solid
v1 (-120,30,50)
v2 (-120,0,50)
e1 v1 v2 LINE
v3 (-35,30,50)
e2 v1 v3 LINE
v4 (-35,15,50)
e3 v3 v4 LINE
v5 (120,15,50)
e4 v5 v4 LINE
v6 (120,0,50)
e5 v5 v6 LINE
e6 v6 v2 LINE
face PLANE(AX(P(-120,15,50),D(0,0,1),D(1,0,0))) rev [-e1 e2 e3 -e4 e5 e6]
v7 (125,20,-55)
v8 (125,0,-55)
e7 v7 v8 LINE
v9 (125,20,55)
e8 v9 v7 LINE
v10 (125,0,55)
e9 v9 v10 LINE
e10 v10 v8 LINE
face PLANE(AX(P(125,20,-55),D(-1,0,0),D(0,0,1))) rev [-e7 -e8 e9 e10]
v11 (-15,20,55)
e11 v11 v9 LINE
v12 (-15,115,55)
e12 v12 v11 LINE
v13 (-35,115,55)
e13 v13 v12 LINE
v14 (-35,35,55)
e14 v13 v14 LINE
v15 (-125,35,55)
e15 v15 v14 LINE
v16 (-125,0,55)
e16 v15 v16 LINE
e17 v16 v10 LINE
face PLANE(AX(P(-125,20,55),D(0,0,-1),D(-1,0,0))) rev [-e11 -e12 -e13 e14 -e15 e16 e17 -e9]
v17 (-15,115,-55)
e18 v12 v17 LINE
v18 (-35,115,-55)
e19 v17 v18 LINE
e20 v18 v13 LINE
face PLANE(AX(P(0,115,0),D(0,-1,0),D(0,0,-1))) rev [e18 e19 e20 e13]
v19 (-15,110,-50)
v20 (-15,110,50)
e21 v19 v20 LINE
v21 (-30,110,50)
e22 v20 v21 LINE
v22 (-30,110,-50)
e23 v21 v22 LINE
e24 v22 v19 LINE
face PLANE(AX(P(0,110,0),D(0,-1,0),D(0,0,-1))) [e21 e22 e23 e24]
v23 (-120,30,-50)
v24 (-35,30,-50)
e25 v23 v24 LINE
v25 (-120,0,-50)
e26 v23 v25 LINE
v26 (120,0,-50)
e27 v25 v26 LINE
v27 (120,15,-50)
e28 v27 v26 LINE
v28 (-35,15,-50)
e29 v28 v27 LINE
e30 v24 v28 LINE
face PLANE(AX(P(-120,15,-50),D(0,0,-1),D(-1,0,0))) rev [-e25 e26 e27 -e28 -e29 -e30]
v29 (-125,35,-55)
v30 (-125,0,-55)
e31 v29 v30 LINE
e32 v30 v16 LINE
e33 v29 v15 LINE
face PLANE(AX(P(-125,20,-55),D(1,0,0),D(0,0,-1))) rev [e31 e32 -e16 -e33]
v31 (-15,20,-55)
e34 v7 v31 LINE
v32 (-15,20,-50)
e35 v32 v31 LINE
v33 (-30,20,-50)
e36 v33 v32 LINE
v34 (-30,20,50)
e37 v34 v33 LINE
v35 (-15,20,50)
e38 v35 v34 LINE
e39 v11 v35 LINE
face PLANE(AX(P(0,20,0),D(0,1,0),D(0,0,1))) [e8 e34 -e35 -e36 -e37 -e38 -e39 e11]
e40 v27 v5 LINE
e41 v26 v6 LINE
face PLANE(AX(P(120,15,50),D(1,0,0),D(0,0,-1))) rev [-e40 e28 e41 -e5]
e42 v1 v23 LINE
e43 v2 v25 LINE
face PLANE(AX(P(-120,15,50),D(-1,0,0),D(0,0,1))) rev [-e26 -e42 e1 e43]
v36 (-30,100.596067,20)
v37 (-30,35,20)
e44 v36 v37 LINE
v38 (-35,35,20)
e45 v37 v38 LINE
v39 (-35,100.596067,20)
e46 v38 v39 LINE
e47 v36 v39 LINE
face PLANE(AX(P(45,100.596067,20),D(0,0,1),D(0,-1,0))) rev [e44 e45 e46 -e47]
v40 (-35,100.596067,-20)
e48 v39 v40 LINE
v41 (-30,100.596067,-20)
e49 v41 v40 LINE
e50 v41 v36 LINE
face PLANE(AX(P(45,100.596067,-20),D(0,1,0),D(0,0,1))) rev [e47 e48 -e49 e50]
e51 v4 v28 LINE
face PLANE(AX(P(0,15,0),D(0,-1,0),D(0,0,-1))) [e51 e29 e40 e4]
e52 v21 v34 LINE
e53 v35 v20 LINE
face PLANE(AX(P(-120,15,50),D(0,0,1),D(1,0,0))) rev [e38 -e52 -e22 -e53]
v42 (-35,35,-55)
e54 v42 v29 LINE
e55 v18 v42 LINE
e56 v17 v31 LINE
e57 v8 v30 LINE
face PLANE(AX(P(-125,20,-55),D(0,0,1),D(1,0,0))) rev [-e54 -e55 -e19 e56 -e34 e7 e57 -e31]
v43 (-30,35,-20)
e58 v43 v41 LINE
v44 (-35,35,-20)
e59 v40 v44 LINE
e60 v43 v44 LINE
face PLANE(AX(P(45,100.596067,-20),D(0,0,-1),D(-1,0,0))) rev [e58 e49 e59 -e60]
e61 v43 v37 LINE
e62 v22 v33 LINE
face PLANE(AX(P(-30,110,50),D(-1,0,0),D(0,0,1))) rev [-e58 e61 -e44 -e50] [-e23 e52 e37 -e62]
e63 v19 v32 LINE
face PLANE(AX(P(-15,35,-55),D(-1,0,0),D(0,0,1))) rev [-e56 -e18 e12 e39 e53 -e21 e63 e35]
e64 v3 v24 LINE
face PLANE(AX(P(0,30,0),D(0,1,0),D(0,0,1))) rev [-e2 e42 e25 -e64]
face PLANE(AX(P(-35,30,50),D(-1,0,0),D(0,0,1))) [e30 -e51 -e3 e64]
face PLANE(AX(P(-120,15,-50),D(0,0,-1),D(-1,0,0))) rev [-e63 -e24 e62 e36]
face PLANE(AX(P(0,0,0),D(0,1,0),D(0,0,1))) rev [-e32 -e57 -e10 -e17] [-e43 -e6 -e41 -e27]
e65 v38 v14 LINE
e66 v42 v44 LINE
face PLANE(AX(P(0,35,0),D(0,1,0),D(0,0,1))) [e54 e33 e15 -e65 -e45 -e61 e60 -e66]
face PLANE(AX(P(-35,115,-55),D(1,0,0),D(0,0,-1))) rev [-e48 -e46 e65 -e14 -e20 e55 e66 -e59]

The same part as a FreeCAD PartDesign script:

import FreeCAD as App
import Part
import Sketcher
from FreeCAD import Vector
Q = App.Units.Quantity


def add_polygon(sketch, points):
    """Adds a closed chain of lines whose ends are joined by coincident constraints."""
    first, n = sketch.GeometryCount, len(points)
    for a, b in zip(points, points[1:] + points[:1]):
        sketch.addGeometry(Part.LineSegment(App.Vector(*a, 0), App.Vector(*b, 0)), False)
    for i in range(n):
        sketch.addConstraint(Sketcher.Constraint("Coincident", first + i, 2, first + (i + 1) % n, 1))

doc = App.newDocument("Part")
body = doc.addObject("PartDesign::Body", "Body")

# Sketch on XZ plane
sketch1 = body.newObject("Sketcher::SketchObject", "Sketch")
sketch1.AttachmentSupport = (doc.getObject("XZ_Plane"), [""])
sketch1.MapMode = "FlatFace"
add_polygon(sketch1, [(-125, -55), (-125, 55), (125, 55), (125, -55)])  # lines 0-3
sketch1.addConstraint(Sketcher.Constraint("Vertical", 0))
sketch1.addConstraint(Sketcher.Constraint("Horizontal", 1))
sketch1.addConstraint(Sketcher.Constraint("Vertical", 2))
sketch1.addConstraint(Sketcher.Constraint("Horizontal", 3))
sketch1.addConstraint(Sketcher.Constraint("Symmetric", 0, 2, 2, 2, -1, 1))
sketch1.addConstraint(Sketcher.Constraint("DistanceX", 1, 1, 1, 2, Q("250 mm")))
sketch1.addConstraint(Sketcher.Constraint("DistanceY", 0, 1, 0, 2, Q("110 mm")))
pad1 = body.newObject("PartDesign::Pad", "Pad")
pad1.Profile = sketch1
pad1.Length = 20
pad1.Reversed = True

# Sketch on XZ plane
sketch2 = body.newObject("Sketcher::SketchObject", "Sketch001")
sketch2.AttachmentSupport = (doc.getObject("XZ_Plane"), [""])
sketch2.MapMode = "FlatFace"
sketch2.AttachmentOffset = App.Placement(Vector(0, 0, -20), App.Rotation())
add_polygon(sketch2, [(-125, -55), (-125, 55), (-15, 55), (-15, -55)])  # lines 0-3
sketch2.addConstraint(Sketcher.Constraint("Vertical", 0))
sketch2.addConstraint(Sketcher.Constraint("Horizontal", 1))
sketch2.addConstraint(Sketcher.Constraint("Vertical", 2))
sketch2.addConstraint(Sketcher.Constraint("Horizontal", 3))
sketch2.addConstraint(Sketcher.Constraint("Equal", 3, 0))
sketch2.addConstraint(Sketcher.Constraint("DistanceX", 1, 1, 1, 2, Q("110 mm")))
sketch2.addConstraint(Sketcher.Constraint("DistanceX", 0, 2, -1, 1, Q("125 mm")))
sketch2.addConstraint(Sketcher.Constraint("DistanceY", -1, 1, 0, 2, Q("55 mm")))
pad2 = body.newObject("PartDesign::Pad", "Pad001")
pad2.Profile = sketch2
pad2.Length = 15
pad2.Reversed = True

# Sketch on XZ plane
sketch3 = body.newObject("Sketcher::SketchObject", "Sketch002")
sketch3.AttachmentSupport = (doc.getObject("XZ_Plane"), [""])
sketch3.MapMode = "FlatFace"
sketch3.AttachmentOffset = App.Placement(Vector(0, 0, -35), App.Rotation())
add_polygon(sketch3, [(-35, -55), (-35, 55), (-15, 55), (-15, -55)])  # lines 0-3
sketch3.addConstraint(Sketcher.Constraint("Vertical", 0))
sketch3.addConstraint(Sketcher.Constraint("Horizontal", 1))
sketch3.addConstraint(Sketcher.Constraint("Vertical", 2))
sketch3.addConstraint(Sketcher.Constraint("Horizontal", 3))
sketch3.addConstraint(Sketcher.Constraint("DistanceX", 1, 1, 1, 2, Q("20 mm")))
sketch3.addConstraint(Sketcher.Constraint("DistanceY", 0, 1, 0, 2, Q("110 mm")))
sketch3.addConstraint(Sketcher.Constraint("DistanceX", 0, 2, -1, 1, Q("35 mm")))
sketch3.addConstraint(Sketcher.Constraint("DistanceY", -1, 1, 0, 2, Q("55 mm")))
pad3 = body.newObject("PartDesign::Pad", "Pad002")
pad3.Profile = sketch3
pad3.Length = 80
pad3.Reversed = True

# Sketch on YZ plane
sketch4 = body.newObject("Sketcher::SketchObject", "Sketch003")
sketch4.AttachmentSupport = (doc.getObject("YZ_Plane"), [""])
sketch4.MapMode = "FlatFace"
sketch4.AttachmentOffset = App.Placement(Vector(0, 0, -35), App.Rotation())
add_polygon(sketch4, [(101, -20), (35, -20), (35, 20), (101, 20)])  # lines 0-3
sketch4.addConstraint(Sketcher.Constraint("Horizontal", 0))
sketch4.addConstraint(Sketcher.Constraint("Vertical", 1))
sketch4.addConstraint(Sketcher.Constraint("Horizontal", 2))
sketch4.addConstraint(Sketcher.Constraint("Vertical", 3))
sketch4.addConstraint(Sketcher.Constraint("DistanceY", 1, 1, 1, 2, Q("40 mm")))
sketch4.addConstraint(Sketcher.Constraint("DistanceX", -1, 1, 0, 2, Q("35 mm")))
sketch4.addConstraint(Sketcher.Constraint("DistanceY", 0, 2, -1, 1, Q("20 mm")))
sketch4.addConstraint(Sketcher.Constraint("DistanceX", 0, 2, 0, 1, Q("65.596067 mm")))
pocket1 = body.newObject("PartDesign::Pocket", "Pocket")
pocket1.Profile = sketch4
pocket1.Length = 80
pocket1.Reversed = True

# Sketch on XZ plane
sketch5 = body.newObject("Sketcher::SketchObject", "Sketch004")
sketch5.AttachmentSupport = (doc.getObject("XZ_Plane"), [""])
sketch5.MapMode = "FlatFace"
add_polygon(sketch5, [(-120, 50), (-120, -50), (120, -50), (120, 50)])  # lines 0-3
sketch5.addConstraint(Sketcher.Constraint("Vertical", 0))
sketch5.addConstraint(Sketcher.Constraint("Horizontal", 1))
sketch5.addConstraint(Sketcher.Constraint("Vertical", 2))
sketch5.addConstraint(Sketcher.Constraint("Horizontal", 3))
sketch5.addConstraint(Sketcher.Constraint("Symmetric", 0, 2, 2, 2, -1, 1))
sketch5.addConstraint(Sketcher.Constraint("DistanceX", 1, 1, 1, 2, Q("240 mm")))
sketch5.addConstraint(Sketcher.Constraint("DistanceY", 0, 2, 0, 1, Q("100 mm")))
pocket2 = body.newObject("PartDesign::Pocket", "Pocket001")
pocket2.Profile = sketch5
pocket2.Length = 15

# Sketch on XZ plane
sketch6 = body.newObject("Sketcher::SketchObject", "Sketch005")
sketch6.AttachmentSupport = (doc.getObject("XZ_Plane"), [""])
sketch6.MapMode = "FlatFace"
sketch6.AttachmentOffset = App.Placement(Vector(0, 0, -15), App.Rotation())
add_polygon(sketch6, [(-35, -50), (-35, 50), (-120, 50), (-120, -50)])  # lines 0-3
sketch6.addConstraint(Sketcher.Constraint("Vertical", 0))
sketch6.addConstraint(Sketcher.Constraint("Horizontal", 1))
sketch6.addConstraint(Sketcher.Constraint("Vertical", 2))
sketch6.addConstraint(Sketcher.Constraint("Horizontal", 3))
sketch6.addConstraint(Sketcher.Constraint("DistanceX", 1, 2, 1, 1, Q("85 mm")))
sketch6.addConstraint(Sketcher.Constraint("DistanceY", 0, 1, 0, 2, Q("100 mm")))
sketch6.addConstraint(Sketcher.Constraint("DistanceX", 0, 2, -1, 1, Q("35 mm")))
sketch6.addConstraint(Sketcher.Constraint("DistanceY", -1, 1, 0, 2, Q("50 mm")))
pocket3 = body.newObject("PartDesign::Pocket", "Pocket002")
pocket3.Profile = sketch6
pocket3.Length = 15

# Sketch on XZ plane
sketch7 = body.newObject("Sketcher::SketchObject", "Sketch006")
sketch7.AttachmentSupport = (doc.getObject("XZ_Plane"), [""])
sketch7.MapMode = "FlatFace"
sketch7.AttachmentOffset = App.Placement(Vector(0, 0, -15), App.Rotation())
add_polygon(sketch7, [(-30, 50), (-30, -50), (-13, -50), (-13, 50)])  # lines 0-3
sketch7.addConstraint(Sketcher.Constraint("Vertical", 0))
sketch7.addConstraint(Sketcher.Constraint("Horizontal", 1))
sketch7.addConstraint(Sketcher.Constraint("Vertical", 2))
sketch7.addConstraint(Sketcher.Constraint("Horizontal", 3))
sketch7.addConstraint(Sketcher.Constraint("DistanceY", 0, 2, 0, 1, Q("100 mm")))
sketch7.addConstraint(Sketcher.Constraint("DistanceX", 0, 2, -1, 1, Q("30 mm")))
sketch7.addConstraint(Sketcher.Constraint("DistanceY", 0, 2, -1, 1, Q("50 mm")))
sketch7.addConstraint(Sketcher.Constraint("DistanceX", 1, 1, 1, 2, Q("17.22469 mm")))
pocket4 = body.newObject("PartDesign::Pocket", "Pocket003")
pocket4.Profile = sketch7
pocket4.Length = 95

# Sketch on XZ plane
sketch8 = body.newObject("Sketcher::SketchObject", "Sketch007")
sketch8.AttachmentSupport = (doc.getObject("XZ_Plane"), [""])
sketch8.MapMode = "FlatFace"
sketch8.AttachmentOffset = App.Placement(Vector(0, 0, -15), App.Rotation())
add_polygon(sketch8, [(-13, -50), (-13, 50), (-30, 50), (-30, -50)])  # lines 0-3
sketch8.addConstraint(Sketcher.Constraint("Vertical", 0))
sketch8.addConstraint(Sketcher.Constraint("Horizontal", 1))
sketch8.addConstraint(Sketcher.Constraint("Vertical", 2))
sketch8.addConstraint(Sketcher.Constraint("Horizontal", 3))
sketch8.addConstraint(Sketcher.Constraint("DistanceY", 0, 1, 0, 2, Q("100 mm")))
sketch8.addConstraint(Sketcher.Constraint("DistanceY", -1, 1, 0, 2, Q("50 mm")))
sketch8.addConstraint(Sketcher.Constraint("DistanceX", 1, 2, -1, 1, Q("30 mm")))
sketch8.addConstraint(Sketcher.Constraint("DistanceX", 1, 2, 1, 1, Q("17.22469 mm")))
pad4 = body.newObject("PartDesign::Pad", "Pad003")
pad4.Profile = sketch8
pad4.Length = 5
pad4.Reversed = True

doc.recompute()
